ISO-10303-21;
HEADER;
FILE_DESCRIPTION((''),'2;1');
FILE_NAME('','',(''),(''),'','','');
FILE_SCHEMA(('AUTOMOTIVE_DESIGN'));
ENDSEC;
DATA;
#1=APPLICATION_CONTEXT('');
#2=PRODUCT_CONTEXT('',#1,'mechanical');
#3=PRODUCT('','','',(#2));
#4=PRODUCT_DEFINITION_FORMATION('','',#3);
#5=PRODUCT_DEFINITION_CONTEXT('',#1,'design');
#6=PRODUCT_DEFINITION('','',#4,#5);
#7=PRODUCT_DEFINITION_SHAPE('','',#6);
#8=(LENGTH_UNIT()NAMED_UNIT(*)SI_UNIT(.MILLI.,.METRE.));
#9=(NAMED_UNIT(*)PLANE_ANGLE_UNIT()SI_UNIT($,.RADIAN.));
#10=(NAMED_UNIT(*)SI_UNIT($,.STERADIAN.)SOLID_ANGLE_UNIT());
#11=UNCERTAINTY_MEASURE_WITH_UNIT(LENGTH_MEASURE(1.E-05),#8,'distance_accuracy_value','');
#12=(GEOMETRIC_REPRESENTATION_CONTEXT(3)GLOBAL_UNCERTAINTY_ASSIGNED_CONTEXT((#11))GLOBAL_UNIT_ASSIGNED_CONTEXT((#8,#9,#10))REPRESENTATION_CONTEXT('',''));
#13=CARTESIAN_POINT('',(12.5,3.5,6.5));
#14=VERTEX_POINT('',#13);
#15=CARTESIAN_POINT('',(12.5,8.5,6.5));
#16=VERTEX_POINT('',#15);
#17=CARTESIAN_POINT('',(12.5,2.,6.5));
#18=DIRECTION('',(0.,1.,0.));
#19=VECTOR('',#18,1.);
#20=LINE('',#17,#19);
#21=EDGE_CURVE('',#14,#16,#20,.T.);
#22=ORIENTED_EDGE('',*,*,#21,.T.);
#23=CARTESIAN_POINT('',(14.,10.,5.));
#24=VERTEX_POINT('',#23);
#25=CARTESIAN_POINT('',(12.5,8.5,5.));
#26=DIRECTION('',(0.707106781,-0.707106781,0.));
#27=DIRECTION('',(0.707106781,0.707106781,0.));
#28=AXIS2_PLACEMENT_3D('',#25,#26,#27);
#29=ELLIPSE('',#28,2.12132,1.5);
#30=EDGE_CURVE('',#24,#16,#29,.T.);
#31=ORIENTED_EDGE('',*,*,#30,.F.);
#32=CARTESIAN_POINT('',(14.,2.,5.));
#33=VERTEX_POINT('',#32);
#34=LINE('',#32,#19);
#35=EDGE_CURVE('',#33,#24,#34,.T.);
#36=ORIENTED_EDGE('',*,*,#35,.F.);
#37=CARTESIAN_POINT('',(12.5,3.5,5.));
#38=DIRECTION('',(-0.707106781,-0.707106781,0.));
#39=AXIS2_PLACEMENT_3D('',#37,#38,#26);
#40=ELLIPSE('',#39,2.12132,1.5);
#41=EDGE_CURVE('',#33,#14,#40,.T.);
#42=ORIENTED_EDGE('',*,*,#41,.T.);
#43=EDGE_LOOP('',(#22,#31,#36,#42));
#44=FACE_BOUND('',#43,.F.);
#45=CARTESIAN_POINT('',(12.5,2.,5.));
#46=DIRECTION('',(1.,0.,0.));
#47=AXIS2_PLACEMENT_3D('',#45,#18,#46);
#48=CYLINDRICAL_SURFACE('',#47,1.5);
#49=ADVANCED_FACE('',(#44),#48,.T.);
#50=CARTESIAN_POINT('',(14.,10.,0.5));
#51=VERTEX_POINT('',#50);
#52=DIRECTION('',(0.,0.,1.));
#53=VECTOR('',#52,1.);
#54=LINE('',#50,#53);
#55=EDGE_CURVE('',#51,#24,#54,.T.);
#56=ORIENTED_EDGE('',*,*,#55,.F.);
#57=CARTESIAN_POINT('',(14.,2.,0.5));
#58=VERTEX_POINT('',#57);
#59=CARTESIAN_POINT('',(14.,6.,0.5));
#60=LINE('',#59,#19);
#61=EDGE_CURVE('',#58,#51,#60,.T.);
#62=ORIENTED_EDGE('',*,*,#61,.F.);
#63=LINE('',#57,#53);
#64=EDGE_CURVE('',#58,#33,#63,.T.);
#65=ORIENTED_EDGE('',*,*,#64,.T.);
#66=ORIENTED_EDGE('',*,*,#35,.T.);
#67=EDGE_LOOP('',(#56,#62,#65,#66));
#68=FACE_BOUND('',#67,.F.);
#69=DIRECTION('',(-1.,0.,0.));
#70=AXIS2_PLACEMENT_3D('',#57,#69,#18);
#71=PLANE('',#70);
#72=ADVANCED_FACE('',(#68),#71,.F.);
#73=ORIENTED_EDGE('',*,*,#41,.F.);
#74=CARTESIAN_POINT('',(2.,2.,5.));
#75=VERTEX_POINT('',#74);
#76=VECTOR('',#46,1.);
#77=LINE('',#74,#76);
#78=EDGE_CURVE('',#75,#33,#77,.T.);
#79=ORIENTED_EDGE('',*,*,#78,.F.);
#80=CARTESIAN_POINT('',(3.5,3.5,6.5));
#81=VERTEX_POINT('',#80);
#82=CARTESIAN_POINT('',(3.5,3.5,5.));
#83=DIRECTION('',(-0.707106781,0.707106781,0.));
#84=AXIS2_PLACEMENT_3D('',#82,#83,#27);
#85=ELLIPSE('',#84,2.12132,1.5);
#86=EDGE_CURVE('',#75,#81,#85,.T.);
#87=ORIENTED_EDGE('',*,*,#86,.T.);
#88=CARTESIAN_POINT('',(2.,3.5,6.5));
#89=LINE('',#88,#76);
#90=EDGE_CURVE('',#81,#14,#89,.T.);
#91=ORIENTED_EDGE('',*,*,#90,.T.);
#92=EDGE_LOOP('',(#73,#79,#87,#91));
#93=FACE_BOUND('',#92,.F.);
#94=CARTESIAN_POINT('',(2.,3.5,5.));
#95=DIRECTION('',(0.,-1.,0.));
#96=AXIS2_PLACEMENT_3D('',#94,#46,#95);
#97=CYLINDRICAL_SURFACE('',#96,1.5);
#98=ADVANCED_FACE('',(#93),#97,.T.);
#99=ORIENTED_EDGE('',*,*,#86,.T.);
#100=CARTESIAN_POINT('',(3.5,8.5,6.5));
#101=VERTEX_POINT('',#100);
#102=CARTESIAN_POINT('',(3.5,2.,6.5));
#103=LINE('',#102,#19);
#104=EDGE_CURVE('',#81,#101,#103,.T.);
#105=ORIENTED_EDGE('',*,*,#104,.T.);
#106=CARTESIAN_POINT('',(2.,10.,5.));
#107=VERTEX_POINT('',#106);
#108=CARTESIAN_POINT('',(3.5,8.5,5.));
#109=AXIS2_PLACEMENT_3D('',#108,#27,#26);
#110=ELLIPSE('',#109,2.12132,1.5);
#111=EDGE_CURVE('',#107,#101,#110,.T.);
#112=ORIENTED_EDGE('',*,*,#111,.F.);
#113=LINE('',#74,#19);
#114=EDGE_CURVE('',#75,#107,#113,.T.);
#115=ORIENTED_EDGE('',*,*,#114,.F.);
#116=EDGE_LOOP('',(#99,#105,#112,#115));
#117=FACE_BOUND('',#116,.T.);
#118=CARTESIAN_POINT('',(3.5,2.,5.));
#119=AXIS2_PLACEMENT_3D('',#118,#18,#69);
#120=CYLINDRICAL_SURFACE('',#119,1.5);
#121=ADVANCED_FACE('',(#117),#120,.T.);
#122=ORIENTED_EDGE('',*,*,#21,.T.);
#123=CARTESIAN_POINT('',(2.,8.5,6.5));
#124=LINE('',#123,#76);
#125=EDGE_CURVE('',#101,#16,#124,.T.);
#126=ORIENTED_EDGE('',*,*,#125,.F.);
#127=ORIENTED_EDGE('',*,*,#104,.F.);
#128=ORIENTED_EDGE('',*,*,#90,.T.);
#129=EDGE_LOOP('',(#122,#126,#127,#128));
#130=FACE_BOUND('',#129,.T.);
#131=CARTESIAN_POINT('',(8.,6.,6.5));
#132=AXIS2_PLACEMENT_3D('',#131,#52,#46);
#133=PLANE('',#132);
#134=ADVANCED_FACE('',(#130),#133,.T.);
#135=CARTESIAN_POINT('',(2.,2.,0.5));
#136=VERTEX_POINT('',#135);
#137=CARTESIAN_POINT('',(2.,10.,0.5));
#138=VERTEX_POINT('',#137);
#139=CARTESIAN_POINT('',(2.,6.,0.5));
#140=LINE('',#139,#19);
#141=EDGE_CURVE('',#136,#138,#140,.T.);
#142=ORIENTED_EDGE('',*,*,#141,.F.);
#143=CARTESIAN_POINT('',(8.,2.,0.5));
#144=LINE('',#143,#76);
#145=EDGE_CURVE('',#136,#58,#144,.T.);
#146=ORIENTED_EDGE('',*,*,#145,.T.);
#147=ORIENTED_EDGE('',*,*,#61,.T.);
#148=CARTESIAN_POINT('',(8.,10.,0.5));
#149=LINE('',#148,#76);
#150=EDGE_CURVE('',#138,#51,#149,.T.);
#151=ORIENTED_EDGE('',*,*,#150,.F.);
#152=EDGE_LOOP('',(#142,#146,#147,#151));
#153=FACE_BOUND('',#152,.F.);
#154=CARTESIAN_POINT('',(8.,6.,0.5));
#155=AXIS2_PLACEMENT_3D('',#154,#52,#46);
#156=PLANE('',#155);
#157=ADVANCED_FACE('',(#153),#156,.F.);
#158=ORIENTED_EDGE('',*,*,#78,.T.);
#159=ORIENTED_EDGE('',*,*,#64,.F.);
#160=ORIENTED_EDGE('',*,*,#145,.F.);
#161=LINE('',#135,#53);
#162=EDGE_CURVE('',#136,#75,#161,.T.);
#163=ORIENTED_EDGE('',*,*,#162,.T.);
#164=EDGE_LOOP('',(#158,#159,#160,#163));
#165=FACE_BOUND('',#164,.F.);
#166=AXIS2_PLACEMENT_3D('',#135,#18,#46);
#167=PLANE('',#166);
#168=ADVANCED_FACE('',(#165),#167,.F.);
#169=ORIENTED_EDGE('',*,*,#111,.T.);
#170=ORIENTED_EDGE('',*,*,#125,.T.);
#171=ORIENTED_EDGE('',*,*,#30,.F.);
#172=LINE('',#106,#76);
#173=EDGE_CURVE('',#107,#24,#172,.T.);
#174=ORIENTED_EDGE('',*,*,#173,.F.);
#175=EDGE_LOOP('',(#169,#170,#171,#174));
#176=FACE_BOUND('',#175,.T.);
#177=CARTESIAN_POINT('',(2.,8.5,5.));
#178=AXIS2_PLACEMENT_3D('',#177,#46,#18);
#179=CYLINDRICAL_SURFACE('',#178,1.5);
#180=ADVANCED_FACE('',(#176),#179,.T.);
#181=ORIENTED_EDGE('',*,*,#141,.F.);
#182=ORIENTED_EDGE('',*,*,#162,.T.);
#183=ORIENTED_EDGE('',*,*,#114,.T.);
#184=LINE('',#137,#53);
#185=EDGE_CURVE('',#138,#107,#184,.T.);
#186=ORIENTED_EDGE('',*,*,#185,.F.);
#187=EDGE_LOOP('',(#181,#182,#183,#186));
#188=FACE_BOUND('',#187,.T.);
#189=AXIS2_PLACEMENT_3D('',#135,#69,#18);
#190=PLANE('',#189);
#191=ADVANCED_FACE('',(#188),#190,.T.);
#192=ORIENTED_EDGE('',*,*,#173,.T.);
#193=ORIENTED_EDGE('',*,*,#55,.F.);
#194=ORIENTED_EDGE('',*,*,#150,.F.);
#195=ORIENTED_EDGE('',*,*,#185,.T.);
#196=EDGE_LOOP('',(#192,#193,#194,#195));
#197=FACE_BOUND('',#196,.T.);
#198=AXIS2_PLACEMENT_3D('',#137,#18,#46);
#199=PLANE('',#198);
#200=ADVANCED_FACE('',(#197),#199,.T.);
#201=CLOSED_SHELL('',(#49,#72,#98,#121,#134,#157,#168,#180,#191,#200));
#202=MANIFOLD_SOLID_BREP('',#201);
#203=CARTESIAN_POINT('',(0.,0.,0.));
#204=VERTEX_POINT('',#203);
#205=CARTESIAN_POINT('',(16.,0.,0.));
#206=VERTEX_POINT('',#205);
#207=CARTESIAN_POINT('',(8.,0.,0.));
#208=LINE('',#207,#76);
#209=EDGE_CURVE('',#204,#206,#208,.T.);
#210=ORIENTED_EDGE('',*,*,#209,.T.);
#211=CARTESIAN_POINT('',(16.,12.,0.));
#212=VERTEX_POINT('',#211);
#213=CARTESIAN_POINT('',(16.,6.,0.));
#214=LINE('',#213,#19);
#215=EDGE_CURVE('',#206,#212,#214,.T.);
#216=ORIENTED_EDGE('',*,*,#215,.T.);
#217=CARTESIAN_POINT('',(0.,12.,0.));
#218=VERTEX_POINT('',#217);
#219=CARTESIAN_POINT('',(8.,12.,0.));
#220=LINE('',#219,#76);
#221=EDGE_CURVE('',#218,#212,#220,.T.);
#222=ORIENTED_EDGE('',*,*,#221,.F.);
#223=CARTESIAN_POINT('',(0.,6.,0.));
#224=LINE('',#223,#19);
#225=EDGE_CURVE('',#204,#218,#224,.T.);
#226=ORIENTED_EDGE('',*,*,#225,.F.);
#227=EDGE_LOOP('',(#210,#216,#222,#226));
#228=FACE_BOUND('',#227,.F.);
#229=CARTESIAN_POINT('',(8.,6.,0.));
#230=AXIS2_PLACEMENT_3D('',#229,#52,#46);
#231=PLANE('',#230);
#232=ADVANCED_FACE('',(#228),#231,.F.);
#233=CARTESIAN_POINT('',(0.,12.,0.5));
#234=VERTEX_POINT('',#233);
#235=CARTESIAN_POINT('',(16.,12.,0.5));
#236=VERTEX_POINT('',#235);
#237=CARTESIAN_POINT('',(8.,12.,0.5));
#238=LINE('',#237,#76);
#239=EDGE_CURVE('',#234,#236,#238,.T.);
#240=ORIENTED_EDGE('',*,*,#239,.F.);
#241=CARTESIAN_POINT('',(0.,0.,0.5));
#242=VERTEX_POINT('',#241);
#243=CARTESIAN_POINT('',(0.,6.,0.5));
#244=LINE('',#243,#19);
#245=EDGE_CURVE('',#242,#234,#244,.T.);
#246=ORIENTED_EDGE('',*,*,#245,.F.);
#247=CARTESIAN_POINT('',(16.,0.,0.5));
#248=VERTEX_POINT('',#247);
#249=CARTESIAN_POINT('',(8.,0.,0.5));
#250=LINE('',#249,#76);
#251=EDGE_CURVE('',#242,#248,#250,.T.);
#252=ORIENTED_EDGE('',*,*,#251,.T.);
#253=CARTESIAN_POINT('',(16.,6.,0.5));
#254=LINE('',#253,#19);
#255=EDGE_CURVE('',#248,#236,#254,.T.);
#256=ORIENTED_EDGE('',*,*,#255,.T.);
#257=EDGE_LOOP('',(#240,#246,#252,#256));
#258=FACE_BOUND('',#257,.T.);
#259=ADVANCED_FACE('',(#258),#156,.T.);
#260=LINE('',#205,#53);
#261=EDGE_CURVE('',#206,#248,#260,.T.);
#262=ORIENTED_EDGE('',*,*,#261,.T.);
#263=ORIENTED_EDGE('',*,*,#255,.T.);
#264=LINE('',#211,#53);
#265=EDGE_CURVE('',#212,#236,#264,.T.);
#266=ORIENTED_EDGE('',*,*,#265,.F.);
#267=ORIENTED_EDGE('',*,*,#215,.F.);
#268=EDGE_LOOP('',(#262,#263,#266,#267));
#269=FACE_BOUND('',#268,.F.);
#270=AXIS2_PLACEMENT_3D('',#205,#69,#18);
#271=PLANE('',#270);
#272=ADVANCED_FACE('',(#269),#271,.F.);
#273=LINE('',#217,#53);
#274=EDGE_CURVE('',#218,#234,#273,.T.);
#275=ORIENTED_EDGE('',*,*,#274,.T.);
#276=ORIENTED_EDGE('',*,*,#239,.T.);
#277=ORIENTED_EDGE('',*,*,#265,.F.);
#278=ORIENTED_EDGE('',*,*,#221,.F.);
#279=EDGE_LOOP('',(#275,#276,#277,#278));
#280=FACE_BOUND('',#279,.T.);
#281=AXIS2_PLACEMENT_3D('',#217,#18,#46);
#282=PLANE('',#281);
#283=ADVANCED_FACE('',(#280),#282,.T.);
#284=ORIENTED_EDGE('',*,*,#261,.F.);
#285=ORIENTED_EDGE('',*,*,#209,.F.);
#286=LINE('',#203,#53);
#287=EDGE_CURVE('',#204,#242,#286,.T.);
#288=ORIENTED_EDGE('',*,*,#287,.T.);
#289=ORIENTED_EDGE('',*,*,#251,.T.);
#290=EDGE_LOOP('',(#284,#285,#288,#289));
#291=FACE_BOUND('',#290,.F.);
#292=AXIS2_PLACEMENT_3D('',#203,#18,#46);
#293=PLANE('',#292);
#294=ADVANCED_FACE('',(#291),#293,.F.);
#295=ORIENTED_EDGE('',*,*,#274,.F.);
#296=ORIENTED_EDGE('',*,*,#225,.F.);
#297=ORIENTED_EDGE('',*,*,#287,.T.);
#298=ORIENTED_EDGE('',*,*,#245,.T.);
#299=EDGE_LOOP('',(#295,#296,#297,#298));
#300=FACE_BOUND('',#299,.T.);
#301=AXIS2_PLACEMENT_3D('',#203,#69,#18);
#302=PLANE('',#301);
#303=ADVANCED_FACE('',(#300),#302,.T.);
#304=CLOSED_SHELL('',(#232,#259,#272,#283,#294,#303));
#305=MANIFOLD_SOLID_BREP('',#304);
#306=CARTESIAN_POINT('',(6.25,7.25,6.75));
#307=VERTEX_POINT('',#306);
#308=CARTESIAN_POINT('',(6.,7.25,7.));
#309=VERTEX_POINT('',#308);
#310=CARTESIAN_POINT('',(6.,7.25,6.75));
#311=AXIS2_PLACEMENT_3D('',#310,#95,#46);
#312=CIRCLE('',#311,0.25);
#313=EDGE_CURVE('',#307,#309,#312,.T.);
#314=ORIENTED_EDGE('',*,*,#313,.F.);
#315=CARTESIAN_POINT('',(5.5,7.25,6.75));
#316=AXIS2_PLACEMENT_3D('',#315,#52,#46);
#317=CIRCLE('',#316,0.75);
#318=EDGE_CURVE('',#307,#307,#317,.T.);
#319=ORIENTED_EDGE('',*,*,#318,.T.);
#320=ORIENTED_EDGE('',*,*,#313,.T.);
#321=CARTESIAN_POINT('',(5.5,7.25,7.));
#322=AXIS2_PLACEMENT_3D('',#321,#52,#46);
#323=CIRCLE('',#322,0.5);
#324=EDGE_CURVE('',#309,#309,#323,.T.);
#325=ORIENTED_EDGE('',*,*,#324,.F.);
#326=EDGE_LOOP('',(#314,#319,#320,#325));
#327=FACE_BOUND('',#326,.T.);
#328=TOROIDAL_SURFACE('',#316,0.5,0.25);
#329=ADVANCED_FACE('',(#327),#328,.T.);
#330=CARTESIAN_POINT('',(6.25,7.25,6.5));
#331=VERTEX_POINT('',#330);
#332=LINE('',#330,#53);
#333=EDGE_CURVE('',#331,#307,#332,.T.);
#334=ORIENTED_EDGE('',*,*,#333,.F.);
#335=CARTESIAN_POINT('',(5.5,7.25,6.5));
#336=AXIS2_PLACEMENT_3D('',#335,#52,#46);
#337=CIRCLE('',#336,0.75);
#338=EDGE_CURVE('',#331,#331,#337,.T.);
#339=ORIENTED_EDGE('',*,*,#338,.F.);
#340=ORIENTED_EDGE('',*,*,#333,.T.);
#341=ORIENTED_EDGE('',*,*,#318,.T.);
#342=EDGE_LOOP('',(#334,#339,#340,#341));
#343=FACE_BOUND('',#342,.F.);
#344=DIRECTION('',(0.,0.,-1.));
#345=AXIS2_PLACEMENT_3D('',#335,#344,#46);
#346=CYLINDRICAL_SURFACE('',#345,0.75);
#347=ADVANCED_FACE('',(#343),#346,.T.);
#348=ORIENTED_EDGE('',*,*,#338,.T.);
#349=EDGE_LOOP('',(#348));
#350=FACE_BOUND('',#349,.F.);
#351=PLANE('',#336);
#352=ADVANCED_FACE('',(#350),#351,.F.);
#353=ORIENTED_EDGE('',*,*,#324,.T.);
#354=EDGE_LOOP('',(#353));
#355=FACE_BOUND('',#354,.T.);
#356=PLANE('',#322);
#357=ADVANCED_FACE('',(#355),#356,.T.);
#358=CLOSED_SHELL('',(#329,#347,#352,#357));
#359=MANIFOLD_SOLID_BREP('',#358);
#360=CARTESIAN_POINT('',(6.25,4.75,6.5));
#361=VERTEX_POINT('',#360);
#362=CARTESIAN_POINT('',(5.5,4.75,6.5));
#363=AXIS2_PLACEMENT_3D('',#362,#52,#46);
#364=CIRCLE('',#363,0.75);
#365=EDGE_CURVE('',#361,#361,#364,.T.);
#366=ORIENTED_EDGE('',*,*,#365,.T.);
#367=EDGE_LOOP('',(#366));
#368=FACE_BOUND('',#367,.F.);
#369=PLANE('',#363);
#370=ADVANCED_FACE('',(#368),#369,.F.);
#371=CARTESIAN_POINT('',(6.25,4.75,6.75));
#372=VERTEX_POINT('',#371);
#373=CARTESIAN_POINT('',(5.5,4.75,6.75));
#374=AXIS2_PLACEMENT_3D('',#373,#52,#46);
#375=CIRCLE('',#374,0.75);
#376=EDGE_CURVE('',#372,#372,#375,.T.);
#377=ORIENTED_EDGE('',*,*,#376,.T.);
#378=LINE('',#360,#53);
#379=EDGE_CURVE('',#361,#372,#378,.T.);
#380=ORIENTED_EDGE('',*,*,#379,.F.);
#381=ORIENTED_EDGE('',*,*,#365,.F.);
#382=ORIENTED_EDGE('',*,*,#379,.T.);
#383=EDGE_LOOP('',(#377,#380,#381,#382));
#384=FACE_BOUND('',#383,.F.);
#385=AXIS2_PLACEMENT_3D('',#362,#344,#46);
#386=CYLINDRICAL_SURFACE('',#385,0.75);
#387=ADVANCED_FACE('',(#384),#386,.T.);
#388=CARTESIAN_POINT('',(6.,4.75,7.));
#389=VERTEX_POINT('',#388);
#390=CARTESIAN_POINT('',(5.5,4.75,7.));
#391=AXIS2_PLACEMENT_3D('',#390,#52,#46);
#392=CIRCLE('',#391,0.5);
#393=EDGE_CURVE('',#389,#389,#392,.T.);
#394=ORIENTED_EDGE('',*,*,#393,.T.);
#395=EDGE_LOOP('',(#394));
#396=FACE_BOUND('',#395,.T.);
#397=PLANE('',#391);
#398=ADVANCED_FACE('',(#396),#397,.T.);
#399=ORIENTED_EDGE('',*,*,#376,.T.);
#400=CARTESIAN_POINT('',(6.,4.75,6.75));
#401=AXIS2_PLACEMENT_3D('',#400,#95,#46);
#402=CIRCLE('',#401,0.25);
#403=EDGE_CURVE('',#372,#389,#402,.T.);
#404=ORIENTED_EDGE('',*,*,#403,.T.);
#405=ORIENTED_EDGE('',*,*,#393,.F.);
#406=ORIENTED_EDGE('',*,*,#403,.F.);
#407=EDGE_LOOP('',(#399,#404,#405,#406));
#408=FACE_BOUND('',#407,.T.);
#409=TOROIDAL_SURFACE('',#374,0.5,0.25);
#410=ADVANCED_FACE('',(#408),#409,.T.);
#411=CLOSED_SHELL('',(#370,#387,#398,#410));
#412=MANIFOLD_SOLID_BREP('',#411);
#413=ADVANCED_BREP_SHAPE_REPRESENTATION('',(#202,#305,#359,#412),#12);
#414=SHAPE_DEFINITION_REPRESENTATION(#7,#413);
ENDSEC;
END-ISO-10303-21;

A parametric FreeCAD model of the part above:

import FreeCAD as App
import Part
import Sketcher

V = App.Vector


def edges_at(feature, points):
    """Names of the edges that pass closest to the given points."""
    edges = feature.Shape.Edges
    near = lambda p: min(range(len(edges)), key=lambda i: edges[i].distToShape(Part.Vertex(*p))[0])
    return sorted({f"Edge{near(p) + 1}" for p in points})

doc = App.newDocument("Part")
params = doc.addObject("Spreadsheet::Sheet", "Params")
for row, (alias, value) in enumerate([
    ("sketch1_width", "16 mm"),
    ("sketch1_height", "12 mm"),
    ("pad1_length", "0.5 mm"),
    ("sketch2_width", "12 mm"),
    ("sketch2_height", "8 mm"),
    ("pad2_length", "6 mm"),
    ("fillet_radius", "1.5 mm"),
    ("sketch3_diameter", "1.5 mm"),
    ("pad3_length", "0.5 mm"),
    ("fillet2_radius", "0.25 mm"),
    ("sketch4_diameter", "1.5 mm"),
    ("pad4_length", "0.5 mm"),
    ("fillet3_radius", "0.25 mm"),
], start=1):
    params.set(f"A{row}", alias)
    params.set(f"B{row}", "=" + value)
    params.setAlias(f"B{row}", alias)

body = doc.addObject("PartDesign::Body", "Body")

sketch1 = body.newObject("Sketcher::SketchObject", "Sketch")
sketch1.AttachmentSupport = (doc.getObject("XY_Plane"), [""])
sketch1.MapMode = "FlatFace"
sketch1.addGeometry([
    Part.LineSegment(V(0, 12, 0), V(0, 0, 0)),
    Part.LineSegment(V(0, 0, 0), V(16, 0, 0)),
    Part.LineSegment(V(16, 0, 0), V(16, 12, 0)),
    Part.LineSegment(V(16, 12, 0), V(0, 12, 0)),
], False)
sketch1.addConstraint([
    Sketcher.Constraint("Coincident", 0, 2, 1, 1),
    Sketcher.Constraint("Coincident", 1, 2, 2, 1),
    Sketcher.Constraint("Coincident", 2, 2, 3, 1),
    Sketcher.Constraint("Coincident", 3, 2, 0, 1),
    Sketcher.Constraint("Vertical", 0),
    Sketcher.Constraint("Horizontal", 1),
    Sketcher.Constraint("Vertical", 2),
    Sketcher.Constraint("Horizontal", 3),
    Sketcher.Constraint("Coincident", 0, 2, -1, 1),
    Sketcher.Constraint("DistanceX", 1, 1, 1, 2, 16.0),
    Sketcher.Constraint("DistanceY", 0, 2, 0, 1, 12.0),
])
sketch1.setExpression("Constraints[9]", "Params.sketch1_width")
sketch1.setExpression("Constraints[10]", "Params.sketch1_height")
pad1 = body.newObject("PartDesign::Pad", "Pad")
pad1.Profile = sketch1
pad1.setExpression("Length", "Params.pad1_length")
body2 = doc.addObject("PartDesign::Body", "Body001")

sketch2 = body2.newObject("Sketcher::SketchObject", "Sketch001")
sketch2.AttachmentSupport = (doc.getObject("XY_Plane001"), [""])
sketch2.MapMode = "FlatFace"
sketch2.AttachmentOffset = App.Placement(V(0, 0, 0.5), App.Rotation())
sketch2.addGeometry([
    Part.LineSegment(V(2, 10, 0), V(2, 2, 0)),
    Part.LineSegment(V(2, 2, 0), V(14, 2, 0)),
    Part.LineSegment(V(14, 2, 0), V(14, 10, 0)),
    Part.LineSegment(V(14, 10, 0), V(2, 10, 0)),
], False)
sketch2.addConstraint([
    Sketcher.Constraint("Coincident", 0, 2, 1, 1),
    Sketcher.Constraint("Coincident", 1, 2, 2, 1),
    Sketcher.Constraint("Coincident", 2, 2, 3, 1),
    Sketcher.Constraint("Coincident", 3, 2, 0, 1),
    Sketcher.Constraint("Vertical", 0),
    Sketcher.Constraint("Horizontal", 1),
    Sketcher.Constraint("Vertical", 2),
    Sketcher.Constraint("Horizontal", 3),
    Sketcher.Constraint("DistanceX", 1, 1, 1, 2, 12.0),
    Sketcher.Constraint("DistanceY", 0, 2, 0, 1, 8.0),
    Sketcher.Constraint("DistanceX", -1, 1, 0, 2, 2.0),
    Sketcher.Constraint("DistanceY", -1, 1, 0, 2, 2.0),
])
sketch2.setExpression("Constraints[8]", "Params.sketch2_width")
sketch2.setExpression("Constraints[9]", "Params.sketch2_height")
pad2 = body2.newObject("PartDesign::Pad", "Pad001")
pad2.Profile = sketch2
pad2.setExpression("Length", "Params.pad2_length")
doc.recompute()

fillet = body2.newObject("PartDesign::Fillet", "Fillet")
fillet.Base = (pad2, edges_at(pad2, [
    (8, 2, 6.5),
    (14, 6, 6.5),
    (8, 10, 6.5),
    (2, 6, 6.5),
]))
fillet.setExpression("Radius", "Params.fillet_radius")
body3 = doc.addObject("PartDesign::Body", "Body002")

sketch3 = body3.newObject("Sketcher::SketchObject", "Sketch002")
sketch3.AttachmentSupport = (doc.getObject("XY_Plane002"), [""])
sketch3.MapMode = "FlatFace"
sketch3.AttachmentOffset = App.Placement(V(0, 0, 6.5), App.Rotation())
sketch3.addGeometry(Part.Circle(V(5.5, 4.75, 0), V(0, 0, 1), 0.75), False)
sketch3.addConstraint([
    Sketcher.Constraint("Diameter", 0, 1.5),
    Sketcher.Constraint("DistanceX", -1, 1, 0, 3, 5.5),
    Sketcher.Constraint("DistanceY", -1, 1, 0, 3, 4.75),
])
sketch3.setExpression("Constraints[0]", "Params.sketch3_diameter")
pad3 = body3.newObject("PartDesign::Pad", "Pad002")
pad3.Profile = sketch3
pad3.setExpression("Length", "Params.pad3_length")
doc.recompute()

fillet2 = body3.newObject("PartDesign::Fillet", "Fillet001")
fillet2.Base = (pad3, edges_at(pad3, [(4.75, 4.75, 7)]))
fillet2.setExpression("Radius", "Params.fillet2_radius")
body4 = doc.addObject("PartDesign::Body", "Body003")

sketch4 = body4.newObject("Sketcher::SketchObject", "Sketch003")
sketch4.AttachmentSupport = (doc.getObject("XY_Plane003"), [""])
sketch4.MapMode = "FlatFace"
sketch4.AttachmentOffset = App.Placement(V(0, 0, 6.5), App.Rotation())
sketch4.addGeometry(Part.Circle(V(5.5, 7.25, 0), V(0, 0, 1), 0.75), False)
sketch4.addConstraint([
    Sketcher.Constraint("Diameter", 0, 1.5),
    Sketcher.Constraint("DistanceX", -1, 1, 0, 3, 5.5),
    Sketcher.Constraint("DistanceY", -1, 1, 0, 3, 7.25),
])
sketch4.setExpression("Constraints[0]", "Params.sketch4_diameter")
pad4 = body4.newObject("PartDesign::Pad", "Pad003")
pad4.Profile = sketch4
pad4.setExpression("Length", "Params.pad4_length")
doc.recompute()

fillet3 = body4.newObject("PartDesign::Fillet", "Fillet002")
fillet3.Base = (pad4, edges_at(pad4, [(4.75, 7.25, 7)]))
fillet3.setExpression("Radius", "Params.fillet3_radius")

doc.recompute()
